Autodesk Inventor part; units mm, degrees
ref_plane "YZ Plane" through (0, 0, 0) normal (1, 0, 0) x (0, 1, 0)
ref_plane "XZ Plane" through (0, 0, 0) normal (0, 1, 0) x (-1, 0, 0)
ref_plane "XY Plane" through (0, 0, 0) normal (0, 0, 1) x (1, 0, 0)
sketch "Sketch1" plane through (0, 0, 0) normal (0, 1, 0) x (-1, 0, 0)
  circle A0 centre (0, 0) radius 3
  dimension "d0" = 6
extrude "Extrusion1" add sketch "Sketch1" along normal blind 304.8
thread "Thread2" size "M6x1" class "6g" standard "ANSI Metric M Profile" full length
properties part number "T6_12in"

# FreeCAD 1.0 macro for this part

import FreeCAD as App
import Part
import Sketcher
Q = App.Units.Quantity

doc = App.newDocument("Part")
body = doc.addObject("PartDesign::Body", "Body")

sketch1 = body.newObject("Sketcher::SketchObject", "Sketch")
sketch1.AttachmentSupport = (doc.getObject("XZ_Plane"), [""])
sketch1.MapMode = "FlatFace"
sketch1.addGeometry(Part.Circle(App.Vector(0, 0, 0), App.Vector(0, 0, 1), 3), False)
sketch1.addConstraint([
    Sketcher.Constraint("Coincident", 0, 3, -1, 1),
    Sketcher.Constraint("Diameter", 0, Q("6 mm")),
])
pad1 = body.newObject("PartDesign::Pad", "Pad")
pad1.Profile = sketch1
pad1.Length = 304.8
pad1.Reversed = True

doc.recompute()
